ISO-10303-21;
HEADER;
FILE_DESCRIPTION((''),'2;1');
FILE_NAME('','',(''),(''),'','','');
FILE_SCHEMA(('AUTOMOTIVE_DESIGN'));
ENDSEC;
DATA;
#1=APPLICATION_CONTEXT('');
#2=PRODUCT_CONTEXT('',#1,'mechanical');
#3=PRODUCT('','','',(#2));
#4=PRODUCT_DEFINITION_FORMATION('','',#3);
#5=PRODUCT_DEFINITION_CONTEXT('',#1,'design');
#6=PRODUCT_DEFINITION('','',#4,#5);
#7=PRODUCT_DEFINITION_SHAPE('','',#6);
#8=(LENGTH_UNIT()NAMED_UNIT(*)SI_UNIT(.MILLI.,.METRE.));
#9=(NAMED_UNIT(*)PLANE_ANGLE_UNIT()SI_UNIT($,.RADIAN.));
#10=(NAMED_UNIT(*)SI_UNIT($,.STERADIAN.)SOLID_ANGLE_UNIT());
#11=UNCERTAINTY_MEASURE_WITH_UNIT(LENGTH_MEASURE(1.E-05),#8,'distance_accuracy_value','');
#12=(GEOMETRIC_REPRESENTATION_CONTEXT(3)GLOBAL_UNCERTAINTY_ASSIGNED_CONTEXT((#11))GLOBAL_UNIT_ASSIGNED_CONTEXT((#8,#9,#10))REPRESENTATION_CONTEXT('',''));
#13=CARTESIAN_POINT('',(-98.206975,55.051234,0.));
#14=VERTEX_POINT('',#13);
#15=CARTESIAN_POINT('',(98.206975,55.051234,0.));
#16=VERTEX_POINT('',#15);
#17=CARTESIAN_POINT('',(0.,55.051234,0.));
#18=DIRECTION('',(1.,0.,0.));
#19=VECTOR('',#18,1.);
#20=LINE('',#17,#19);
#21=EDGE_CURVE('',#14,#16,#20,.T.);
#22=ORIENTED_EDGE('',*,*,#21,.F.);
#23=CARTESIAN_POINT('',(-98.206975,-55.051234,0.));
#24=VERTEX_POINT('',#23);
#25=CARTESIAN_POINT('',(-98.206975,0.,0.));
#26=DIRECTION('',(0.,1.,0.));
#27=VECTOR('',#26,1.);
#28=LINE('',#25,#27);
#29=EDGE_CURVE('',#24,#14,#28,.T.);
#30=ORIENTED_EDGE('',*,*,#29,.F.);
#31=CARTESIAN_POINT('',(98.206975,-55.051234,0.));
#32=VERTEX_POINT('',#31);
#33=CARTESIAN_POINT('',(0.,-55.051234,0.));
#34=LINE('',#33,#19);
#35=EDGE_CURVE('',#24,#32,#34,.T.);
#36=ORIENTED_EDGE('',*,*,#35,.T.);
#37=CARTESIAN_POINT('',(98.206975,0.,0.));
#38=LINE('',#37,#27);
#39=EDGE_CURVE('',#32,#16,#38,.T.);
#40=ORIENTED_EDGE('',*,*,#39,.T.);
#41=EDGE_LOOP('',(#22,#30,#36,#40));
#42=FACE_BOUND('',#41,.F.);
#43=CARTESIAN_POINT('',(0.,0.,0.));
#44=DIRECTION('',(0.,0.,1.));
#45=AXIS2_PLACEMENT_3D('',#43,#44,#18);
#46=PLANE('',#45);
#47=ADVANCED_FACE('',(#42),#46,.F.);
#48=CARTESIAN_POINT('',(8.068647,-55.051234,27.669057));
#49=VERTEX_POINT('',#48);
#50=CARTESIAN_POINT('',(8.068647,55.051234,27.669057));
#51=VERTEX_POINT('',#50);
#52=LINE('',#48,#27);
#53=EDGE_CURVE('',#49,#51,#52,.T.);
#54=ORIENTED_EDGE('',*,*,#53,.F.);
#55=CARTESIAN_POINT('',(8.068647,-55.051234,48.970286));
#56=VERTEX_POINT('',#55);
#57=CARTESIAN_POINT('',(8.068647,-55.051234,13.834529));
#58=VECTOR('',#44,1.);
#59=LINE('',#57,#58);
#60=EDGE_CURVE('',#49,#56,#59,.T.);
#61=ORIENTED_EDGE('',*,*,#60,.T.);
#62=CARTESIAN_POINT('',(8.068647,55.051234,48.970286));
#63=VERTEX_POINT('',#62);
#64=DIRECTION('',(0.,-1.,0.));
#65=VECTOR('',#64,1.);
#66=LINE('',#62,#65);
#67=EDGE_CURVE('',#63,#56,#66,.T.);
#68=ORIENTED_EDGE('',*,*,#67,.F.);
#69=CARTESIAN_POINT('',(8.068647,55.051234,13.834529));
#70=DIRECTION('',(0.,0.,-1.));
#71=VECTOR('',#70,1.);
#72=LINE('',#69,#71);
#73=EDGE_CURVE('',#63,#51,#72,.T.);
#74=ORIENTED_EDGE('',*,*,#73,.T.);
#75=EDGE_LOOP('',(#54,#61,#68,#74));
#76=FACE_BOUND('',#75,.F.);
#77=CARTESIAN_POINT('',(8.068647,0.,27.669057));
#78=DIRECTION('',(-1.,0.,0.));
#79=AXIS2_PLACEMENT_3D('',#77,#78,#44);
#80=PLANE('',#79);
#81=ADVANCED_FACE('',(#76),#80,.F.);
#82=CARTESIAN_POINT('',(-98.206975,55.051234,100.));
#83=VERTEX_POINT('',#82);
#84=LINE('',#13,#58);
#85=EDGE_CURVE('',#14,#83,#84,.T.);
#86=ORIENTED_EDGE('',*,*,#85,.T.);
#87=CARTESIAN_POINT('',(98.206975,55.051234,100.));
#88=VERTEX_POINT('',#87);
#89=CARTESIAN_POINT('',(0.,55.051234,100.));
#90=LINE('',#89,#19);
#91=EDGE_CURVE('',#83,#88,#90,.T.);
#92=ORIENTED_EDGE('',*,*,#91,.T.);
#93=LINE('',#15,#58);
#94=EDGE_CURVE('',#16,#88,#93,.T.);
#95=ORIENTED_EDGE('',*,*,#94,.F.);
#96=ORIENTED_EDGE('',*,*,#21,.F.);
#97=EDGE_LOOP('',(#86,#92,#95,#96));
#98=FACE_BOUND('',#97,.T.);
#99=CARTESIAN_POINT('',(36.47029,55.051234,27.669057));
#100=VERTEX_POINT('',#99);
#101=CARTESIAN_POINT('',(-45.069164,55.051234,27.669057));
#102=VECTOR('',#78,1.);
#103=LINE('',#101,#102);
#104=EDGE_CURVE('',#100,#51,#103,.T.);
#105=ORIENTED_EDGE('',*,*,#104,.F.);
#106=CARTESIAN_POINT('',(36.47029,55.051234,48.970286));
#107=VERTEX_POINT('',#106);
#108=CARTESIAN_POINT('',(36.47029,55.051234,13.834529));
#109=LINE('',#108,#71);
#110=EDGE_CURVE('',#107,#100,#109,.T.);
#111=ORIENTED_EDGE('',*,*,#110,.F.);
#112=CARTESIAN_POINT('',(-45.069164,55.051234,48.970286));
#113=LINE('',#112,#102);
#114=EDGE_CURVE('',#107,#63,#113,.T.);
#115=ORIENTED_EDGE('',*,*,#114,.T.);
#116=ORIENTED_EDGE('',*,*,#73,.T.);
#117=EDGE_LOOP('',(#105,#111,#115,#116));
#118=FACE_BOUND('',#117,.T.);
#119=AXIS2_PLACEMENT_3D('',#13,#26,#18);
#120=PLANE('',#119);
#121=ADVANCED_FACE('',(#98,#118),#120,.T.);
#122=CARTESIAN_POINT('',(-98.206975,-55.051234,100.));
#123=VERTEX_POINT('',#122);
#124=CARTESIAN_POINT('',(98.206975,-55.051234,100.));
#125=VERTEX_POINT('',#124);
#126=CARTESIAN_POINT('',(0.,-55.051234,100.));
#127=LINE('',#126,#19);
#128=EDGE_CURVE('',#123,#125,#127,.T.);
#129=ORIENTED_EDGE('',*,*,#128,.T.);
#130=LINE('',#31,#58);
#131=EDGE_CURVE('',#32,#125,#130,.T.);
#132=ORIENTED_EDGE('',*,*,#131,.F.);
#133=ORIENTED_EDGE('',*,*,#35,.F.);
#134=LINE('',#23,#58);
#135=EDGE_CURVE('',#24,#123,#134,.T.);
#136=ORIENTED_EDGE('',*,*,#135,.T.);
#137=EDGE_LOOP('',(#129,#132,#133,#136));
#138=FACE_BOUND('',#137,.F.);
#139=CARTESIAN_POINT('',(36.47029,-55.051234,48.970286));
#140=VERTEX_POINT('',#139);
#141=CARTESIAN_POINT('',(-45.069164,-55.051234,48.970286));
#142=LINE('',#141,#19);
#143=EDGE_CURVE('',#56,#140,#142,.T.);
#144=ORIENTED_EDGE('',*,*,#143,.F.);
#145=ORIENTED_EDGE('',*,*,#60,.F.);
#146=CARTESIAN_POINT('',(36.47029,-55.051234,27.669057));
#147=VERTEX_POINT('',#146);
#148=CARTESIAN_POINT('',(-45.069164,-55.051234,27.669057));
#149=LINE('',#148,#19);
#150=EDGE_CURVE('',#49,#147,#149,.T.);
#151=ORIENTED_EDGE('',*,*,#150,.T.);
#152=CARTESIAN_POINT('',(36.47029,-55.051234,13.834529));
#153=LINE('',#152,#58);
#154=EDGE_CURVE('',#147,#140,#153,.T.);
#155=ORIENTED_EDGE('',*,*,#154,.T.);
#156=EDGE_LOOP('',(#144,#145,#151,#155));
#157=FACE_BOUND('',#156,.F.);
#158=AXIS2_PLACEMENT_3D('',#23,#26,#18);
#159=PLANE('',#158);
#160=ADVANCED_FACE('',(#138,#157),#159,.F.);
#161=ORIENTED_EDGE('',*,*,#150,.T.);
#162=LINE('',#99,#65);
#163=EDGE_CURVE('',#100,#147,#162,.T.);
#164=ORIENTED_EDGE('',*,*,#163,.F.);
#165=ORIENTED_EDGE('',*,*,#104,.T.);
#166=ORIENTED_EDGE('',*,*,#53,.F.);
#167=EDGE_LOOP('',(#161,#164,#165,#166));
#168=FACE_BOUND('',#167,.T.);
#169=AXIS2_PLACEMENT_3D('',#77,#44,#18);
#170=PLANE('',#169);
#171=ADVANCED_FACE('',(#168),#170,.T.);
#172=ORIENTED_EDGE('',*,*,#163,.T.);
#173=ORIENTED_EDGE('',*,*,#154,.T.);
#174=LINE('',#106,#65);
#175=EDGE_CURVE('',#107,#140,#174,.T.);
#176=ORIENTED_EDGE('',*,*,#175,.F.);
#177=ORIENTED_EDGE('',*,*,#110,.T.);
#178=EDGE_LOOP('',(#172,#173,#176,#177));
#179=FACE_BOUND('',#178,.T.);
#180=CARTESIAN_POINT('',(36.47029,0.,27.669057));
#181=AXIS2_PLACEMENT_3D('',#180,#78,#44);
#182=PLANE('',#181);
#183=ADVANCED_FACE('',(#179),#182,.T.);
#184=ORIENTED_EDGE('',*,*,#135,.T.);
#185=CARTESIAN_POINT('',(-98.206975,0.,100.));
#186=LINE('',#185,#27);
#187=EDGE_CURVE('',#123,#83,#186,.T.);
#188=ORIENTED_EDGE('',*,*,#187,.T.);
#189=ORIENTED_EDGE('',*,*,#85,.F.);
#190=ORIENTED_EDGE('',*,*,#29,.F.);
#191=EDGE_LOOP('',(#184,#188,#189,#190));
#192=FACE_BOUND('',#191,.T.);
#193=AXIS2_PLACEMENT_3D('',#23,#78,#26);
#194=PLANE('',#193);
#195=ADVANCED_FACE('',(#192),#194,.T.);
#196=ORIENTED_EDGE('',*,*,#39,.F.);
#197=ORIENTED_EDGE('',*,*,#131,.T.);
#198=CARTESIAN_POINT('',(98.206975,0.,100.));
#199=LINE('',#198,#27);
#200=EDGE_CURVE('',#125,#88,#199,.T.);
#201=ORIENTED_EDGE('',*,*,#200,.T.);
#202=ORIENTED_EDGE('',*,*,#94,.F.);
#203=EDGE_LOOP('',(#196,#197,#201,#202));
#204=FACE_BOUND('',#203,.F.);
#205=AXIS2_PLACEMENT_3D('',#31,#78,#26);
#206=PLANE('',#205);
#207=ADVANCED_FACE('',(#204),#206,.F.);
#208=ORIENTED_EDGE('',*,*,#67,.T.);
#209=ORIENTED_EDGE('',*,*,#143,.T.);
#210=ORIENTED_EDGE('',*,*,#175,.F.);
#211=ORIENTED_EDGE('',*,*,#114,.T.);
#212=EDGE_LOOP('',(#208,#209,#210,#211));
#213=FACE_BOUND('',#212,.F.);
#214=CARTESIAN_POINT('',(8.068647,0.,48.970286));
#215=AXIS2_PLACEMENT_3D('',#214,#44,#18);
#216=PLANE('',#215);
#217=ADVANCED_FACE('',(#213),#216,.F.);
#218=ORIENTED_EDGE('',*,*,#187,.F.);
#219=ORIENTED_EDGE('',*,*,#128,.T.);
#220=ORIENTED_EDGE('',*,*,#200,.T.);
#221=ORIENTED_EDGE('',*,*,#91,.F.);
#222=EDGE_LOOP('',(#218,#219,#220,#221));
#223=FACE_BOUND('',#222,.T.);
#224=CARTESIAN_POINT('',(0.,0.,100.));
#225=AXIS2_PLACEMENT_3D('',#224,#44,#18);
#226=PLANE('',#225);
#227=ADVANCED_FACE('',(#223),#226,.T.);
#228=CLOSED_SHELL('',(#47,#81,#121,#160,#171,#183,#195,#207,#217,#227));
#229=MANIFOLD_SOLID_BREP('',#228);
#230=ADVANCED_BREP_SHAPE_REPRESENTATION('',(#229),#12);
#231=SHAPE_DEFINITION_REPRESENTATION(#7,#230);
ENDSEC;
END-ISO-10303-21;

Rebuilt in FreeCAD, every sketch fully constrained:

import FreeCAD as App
import Part
import Sketcher

V = App.Vector
Q = App.Units.Quantity

doc = App.newDocument("Part")
params = doc.addObject("Spreadsheet::Sheet", "Params")
for row, (alias, value) in enumerate([
    ("pad1_length", "100 mm"),
], start=1):
    params.set(f"A{row}", alias)
    params.set(f"B{row}", "=" + value)
    params.setAlias(f"B{row}", alias)

body = doc.addObject("PartDesign::Body", "Body")

# Sketch on XY plane
sketch1 = body.newObject("Sketcher::SketchObject", "Sketch")
sketch1.AttachmentSupport = (doc.getObject("XY_Plane"), [""])
sketch1.MapMode = "FlatFace"
sketch1.addGeometry([
    Part.LineSegment(V(-98.206975, 55.051234, 0), V(-98.206975, -55.051234, 0)),
    Part.LineSegment(V(-98.206975, -55.051234, 0), V(98.206975, -55.051234, 0)),
    Part.LineSegment(V(98.206975, -55.051234, 0), V(98.206975, 55.051234, 0)),
    Part.LineSegment(V(98.206975, 55.051234, 0), V(-98.206975, 55.051234, 0)),
], False)
sketch1.addConstraint([
    Sketcher.Constraint("Coincident", 0, 2, 1, 1),
    Sketcher.Constraint("Coincident", 1, 2, 2, 1),
    Sketcher.Constraint("Coincident", 2, 2, 3, 1),
    Sketcher.Constraint("Coincident", 3, 2, 0, 1),
    Sketcher.Constraint("Vertical", 0),
    Sketcher.Constraint("Horizontal", 1),
    Sketcher.Constraint("Vertical", 2),
    Sketcher.Constraint("Horizontal", 3),
    Sketcher.Constraint("Symmetric", 0, 2, 2, 2, -1, 1),
    Sketcher.Constraint("DistanceX", 1, 1, 1, 2, Q("196.413949 mm")),
    Sketcher.Constraint("DistanceY", 0, 2, 0, 1, Q("110.102467 mm")),
])
pad1 = body.newObject("PartDesign::Pad", "Pad")
pad1.Profile = sketch1
pad1.setExpression("Length", "Params.pad1_length")

# Sketch on XZ plane
sketch2 = body.newObject("Sketcher::SketchObject", "Sketch001")
sketch2.AttachmentSupport = (doc.getObject("XZ_Plane"), [""])
sketch2.MapMode = "FlatFace"
sketch2.addGeometry([
    Part.LineSegment(V(8.068647, 48.970286, 0), V(8.068647, 27.669057, 0)),
    Part.LineSegment(V(8.068647, 27.669057, 0), V(36.47029, 27.669057, 0)),
    Part.LineSegment(V(36.47029, 27.669057, 0), V(36.47029, 48.970286, 0)),
    Part.LineSegment(V(36.47029, 48.970286, 0), V(8.068647, 48.970286, 0)),
], False)
sketch2.addConstraint([
    Sketcher.Constraint("Coincident", 0, 2, 1, 1),
    Sketcher.Constraint("Coincident", 1, 2, 2, 1),
    Sketcher.Constraint("Coincident", 2, 2, 3, 1),
    Sketcher.Constraint("Coincident", 3, 2, 0, 1),
    Sketcher.Constraint("Vertical", 0),
    Sketcher.Constraint("Horizontal", 1),
    Sketcher.Constraint("Vertical", 2),
    Sketcher.Constraint("Horizontal", 3),
    Sketcher.Constraint("DistanceY", 0, 2, 0, 1, Q("21.301229 mm")),
    Sketcher.Constraint("DistanceX", 1, 1, 1, 2, Q("28.401643 mm")),
    Sketcher.Constraint("DistanceX", -1, 1, 1, 2, Q("36.47029 mm")),
    Sketcher.Constraint("DistanceY", -1, 1, 0, 2, Q("27.669057 mm")),
])
pocket1 = body.newObject("PartDesign::Pocket", "Pocket")
pocket1.Profile = sketch2
pocket1.Type = "ThroughAll"
pocket1.Midplane = True

doc.recompute()
